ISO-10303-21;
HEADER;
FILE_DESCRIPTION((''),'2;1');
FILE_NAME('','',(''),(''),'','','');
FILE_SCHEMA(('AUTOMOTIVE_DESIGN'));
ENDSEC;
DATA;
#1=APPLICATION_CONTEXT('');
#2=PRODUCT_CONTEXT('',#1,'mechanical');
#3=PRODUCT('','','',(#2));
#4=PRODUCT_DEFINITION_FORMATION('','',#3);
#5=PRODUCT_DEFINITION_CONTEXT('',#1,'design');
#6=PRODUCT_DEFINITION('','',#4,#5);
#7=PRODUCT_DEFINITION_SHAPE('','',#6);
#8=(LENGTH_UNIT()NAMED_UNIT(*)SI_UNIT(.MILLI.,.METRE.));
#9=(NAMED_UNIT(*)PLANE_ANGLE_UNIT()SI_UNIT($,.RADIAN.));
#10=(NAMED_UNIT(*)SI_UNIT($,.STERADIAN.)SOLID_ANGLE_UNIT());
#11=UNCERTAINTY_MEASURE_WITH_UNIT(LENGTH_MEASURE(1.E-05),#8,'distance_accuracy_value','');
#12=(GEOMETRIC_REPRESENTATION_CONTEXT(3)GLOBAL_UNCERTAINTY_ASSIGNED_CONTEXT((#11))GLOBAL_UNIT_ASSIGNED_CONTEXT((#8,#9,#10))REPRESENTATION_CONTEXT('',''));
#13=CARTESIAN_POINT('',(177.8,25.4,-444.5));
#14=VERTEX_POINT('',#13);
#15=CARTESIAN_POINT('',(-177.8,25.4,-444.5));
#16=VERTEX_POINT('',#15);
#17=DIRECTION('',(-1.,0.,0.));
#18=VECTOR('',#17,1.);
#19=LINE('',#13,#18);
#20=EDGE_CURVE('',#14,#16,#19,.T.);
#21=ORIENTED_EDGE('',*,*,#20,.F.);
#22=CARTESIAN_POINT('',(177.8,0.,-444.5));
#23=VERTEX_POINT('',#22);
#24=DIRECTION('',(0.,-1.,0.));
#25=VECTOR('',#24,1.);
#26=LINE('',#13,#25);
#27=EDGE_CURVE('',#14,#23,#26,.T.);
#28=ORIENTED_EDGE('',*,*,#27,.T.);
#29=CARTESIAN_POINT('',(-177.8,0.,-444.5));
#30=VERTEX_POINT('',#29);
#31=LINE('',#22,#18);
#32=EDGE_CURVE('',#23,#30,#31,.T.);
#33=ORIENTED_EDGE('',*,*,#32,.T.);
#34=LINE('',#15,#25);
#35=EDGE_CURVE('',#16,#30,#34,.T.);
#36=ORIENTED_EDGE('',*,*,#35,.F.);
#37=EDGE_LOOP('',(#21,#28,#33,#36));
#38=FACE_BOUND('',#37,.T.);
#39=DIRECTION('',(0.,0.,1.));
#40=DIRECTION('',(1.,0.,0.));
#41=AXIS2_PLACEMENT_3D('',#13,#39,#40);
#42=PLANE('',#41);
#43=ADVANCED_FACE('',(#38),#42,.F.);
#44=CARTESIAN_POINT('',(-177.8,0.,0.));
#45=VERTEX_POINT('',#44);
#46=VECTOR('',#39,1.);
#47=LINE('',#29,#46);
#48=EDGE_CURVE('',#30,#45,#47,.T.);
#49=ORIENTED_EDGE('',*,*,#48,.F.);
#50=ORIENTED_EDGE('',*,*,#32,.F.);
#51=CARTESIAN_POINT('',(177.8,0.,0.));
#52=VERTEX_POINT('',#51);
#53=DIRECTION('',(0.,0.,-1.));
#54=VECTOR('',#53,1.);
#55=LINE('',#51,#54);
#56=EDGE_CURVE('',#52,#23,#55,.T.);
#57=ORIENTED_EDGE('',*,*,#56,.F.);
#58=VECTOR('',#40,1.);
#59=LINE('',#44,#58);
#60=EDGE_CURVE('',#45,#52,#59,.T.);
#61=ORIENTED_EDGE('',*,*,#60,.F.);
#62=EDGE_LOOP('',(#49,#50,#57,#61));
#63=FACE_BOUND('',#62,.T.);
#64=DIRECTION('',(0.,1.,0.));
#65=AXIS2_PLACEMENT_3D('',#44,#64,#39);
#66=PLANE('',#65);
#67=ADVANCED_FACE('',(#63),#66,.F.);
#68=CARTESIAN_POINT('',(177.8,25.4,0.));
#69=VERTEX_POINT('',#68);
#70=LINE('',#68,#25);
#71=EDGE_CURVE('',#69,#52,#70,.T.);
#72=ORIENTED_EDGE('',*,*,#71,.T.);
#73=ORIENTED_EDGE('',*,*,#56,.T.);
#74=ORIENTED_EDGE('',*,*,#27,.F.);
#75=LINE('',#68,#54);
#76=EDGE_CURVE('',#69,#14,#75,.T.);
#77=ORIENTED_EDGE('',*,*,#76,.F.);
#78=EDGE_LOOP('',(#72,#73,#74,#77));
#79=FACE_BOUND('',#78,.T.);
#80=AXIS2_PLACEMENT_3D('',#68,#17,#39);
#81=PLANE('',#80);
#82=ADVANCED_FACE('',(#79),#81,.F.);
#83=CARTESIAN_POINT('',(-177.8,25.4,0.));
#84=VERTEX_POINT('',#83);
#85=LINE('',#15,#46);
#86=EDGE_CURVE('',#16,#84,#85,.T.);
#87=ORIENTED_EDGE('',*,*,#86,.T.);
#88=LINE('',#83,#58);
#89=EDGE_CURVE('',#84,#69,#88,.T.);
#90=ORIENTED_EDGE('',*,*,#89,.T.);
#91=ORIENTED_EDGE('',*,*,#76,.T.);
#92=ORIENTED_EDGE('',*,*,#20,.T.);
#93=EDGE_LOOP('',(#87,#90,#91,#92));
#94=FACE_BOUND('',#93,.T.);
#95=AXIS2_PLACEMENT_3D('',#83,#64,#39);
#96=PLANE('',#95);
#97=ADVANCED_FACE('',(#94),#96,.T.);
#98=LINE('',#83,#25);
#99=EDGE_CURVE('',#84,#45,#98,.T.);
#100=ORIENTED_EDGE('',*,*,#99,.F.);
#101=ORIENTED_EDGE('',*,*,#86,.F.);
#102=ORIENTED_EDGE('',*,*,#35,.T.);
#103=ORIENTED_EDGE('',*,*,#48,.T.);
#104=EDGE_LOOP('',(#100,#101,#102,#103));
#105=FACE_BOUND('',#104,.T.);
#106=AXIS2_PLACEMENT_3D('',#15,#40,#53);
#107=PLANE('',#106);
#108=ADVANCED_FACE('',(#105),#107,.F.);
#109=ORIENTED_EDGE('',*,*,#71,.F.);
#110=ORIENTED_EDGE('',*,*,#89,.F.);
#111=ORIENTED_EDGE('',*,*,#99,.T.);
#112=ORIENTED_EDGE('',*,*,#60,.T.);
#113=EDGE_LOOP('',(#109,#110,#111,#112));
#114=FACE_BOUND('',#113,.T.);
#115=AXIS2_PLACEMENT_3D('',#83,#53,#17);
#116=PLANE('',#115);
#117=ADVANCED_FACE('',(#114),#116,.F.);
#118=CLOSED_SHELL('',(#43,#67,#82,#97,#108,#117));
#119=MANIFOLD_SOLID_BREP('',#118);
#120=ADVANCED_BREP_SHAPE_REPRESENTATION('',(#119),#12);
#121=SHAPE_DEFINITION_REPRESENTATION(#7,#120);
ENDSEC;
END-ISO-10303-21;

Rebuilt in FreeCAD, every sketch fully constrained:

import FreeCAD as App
import Part
import Sketcher
Q = App.Units.Quantity


def add_polygon(sketch, points):
    """Adds a closed chain of lines whose ends are joined by coincident constraints."""
    first, n = sketch.GeometryCount, len(points)
    for a, b in zip(points, points[1:] + points[:1]):
        sketch.addGeometry(Part.LineSegment(App.Vector(*a, 0), App.Vector(*b, 0)), False)
    for i in range(n):
        sketch.addConstraint(Sketcher.Constraint("Coincident", first + i, 2, first + (i + 1) % n, 1))

doc = App.newDocument("Part")
body = doc.addObject("PartDesign::Body", "Body")

sketch1 = body.newObject("Sketcher::SketchObject", "Sketch")
sketch1.AttachmentSupport = (doc.getObject("XZ_Plane"), [""])
sketch1.MapMode = "FlatFace"
add_polygon(sketch1, [(-178, -444), (-178, 0), (178, 0), (178, -444)])
sketch1.addConstraint(Sketcher.Constraint("Vertical", 0))
sketch1.addConstraint(Sketcher.Constraint("Horizontal", 1))
sketch1.addConstraint(Sketcher.Constraint("Vertical", 2))
sketch1.addConstraint(Sketcher.Constraint("Horizontal", 3))
sketch1.addConstraint(Sketcher.Constraint("Symmetric", 0, 2, 1, 2, -1, 1))
sketch1.addConstraint(Sketcher.Constraint("DistanceX", 1, 1, 1, 2, Q("14 in")))
sketch1.addConstraint(Sketcher.Constraint("DistanceY", 0, 1, 0, 2, Q("17.5 in")))
pad1 = body.newObject("PartDesign::Pad", "Pad")
pad1.Profile = sketch1
pad1.Length = Q("1 in")
pad1.Reversed = True

doc.recompute()
